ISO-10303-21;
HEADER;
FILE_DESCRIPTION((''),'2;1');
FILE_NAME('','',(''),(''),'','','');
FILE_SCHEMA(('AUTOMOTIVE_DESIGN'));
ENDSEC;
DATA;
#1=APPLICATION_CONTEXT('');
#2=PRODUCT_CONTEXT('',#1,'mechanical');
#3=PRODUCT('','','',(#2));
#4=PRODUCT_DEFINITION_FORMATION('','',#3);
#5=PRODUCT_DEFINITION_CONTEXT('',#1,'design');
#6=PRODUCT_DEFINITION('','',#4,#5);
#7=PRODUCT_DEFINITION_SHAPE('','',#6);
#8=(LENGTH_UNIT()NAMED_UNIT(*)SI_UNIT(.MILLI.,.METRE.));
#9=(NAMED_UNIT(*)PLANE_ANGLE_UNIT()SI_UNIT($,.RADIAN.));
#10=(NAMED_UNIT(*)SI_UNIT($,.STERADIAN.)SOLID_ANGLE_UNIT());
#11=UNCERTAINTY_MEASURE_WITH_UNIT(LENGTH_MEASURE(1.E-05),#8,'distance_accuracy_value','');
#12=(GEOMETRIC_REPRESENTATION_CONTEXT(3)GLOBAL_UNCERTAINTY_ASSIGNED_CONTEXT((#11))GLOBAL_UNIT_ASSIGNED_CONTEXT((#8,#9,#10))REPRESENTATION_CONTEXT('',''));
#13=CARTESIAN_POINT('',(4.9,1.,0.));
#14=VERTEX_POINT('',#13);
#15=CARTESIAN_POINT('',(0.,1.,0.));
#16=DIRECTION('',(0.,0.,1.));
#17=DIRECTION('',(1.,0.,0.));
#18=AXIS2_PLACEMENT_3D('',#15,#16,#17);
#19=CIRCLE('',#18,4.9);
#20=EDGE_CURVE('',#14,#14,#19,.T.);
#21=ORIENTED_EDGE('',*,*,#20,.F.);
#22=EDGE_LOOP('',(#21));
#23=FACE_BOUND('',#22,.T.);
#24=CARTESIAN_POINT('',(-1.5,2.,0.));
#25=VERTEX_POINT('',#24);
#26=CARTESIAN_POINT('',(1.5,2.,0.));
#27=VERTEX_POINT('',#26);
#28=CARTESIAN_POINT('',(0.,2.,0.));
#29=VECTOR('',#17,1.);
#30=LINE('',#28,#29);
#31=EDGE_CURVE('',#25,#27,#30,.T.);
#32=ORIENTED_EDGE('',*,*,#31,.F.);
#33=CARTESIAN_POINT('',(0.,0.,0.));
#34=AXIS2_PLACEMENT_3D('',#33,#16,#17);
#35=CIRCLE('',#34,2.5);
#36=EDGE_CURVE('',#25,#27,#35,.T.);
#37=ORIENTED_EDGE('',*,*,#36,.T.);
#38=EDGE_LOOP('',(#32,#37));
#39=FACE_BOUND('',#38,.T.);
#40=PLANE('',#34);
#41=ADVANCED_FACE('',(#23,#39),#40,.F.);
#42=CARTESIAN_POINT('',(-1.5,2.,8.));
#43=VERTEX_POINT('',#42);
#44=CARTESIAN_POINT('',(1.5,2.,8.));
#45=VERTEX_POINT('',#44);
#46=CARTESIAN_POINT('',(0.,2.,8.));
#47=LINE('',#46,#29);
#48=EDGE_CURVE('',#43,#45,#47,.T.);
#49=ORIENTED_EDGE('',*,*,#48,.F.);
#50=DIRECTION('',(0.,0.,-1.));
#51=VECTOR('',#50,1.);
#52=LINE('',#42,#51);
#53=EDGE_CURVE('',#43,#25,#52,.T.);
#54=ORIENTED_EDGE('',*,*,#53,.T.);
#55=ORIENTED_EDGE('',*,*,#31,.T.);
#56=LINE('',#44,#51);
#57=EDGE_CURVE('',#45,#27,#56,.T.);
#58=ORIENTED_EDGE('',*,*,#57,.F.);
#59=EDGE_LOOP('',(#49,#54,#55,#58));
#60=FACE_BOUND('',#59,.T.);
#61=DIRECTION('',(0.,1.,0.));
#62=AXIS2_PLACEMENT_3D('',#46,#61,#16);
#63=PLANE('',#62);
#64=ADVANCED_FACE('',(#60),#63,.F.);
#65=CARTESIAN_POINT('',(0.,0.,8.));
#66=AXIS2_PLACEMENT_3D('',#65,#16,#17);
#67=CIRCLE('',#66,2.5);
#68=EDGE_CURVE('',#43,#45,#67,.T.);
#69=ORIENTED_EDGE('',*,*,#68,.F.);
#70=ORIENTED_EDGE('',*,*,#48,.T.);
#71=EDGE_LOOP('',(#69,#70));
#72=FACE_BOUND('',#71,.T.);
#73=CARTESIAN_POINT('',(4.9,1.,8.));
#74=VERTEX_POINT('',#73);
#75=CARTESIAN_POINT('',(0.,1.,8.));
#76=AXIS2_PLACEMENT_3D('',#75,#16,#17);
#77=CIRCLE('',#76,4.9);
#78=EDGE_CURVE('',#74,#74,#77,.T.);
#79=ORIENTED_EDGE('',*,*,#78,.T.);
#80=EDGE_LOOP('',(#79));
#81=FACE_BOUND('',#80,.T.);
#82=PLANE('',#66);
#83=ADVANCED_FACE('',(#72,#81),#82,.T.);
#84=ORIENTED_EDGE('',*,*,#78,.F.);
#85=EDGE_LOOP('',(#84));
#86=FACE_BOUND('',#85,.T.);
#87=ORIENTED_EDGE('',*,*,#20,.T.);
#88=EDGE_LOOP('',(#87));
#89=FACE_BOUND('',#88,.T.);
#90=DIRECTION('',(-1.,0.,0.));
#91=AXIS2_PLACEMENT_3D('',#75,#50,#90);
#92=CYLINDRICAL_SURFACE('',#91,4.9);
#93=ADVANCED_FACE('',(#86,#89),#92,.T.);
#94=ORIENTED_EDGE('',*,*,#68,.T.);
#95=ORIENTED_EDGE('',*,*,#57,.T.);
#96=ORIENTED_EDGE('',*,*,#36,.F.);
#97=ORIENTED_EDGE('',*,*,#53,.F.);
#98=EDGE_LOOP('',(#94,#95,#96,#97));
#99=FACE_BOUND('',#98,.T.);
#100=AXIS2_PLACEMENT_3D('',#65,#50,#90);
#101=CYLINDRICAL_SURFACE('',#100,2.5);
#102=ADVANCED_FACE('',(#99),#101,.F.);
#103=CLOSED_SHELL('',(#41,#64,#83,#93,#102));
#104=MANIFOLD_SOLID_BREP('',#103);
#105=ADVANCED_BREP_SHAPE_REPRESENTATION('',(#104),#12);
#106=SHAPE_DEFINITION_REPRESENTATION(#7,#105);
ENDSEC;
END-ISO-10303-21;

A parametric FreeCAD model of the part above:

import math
import FreeCAD as App
import Part
import Sketcher

doc = App.newDocument("Part")
body = doc.addObject("PartDesign::Body", "Body")

sketch1 = body.newObject("Sketcher::SketchObject", "Sketch")
sketch1.AttachmentSupport = (doc.getObject("XY_Plane"), [""])
sketch1.MapMode = "FlatFace"
sketch1.addGeometry([
    Part.Circle(App.Vector(0, 1, 0), App.Vector(0, 0, 1), 4.9),
    Part.ArcOfCircle(Part.Circle(App.Vector(0, 0, 0), App.Vector(0, 0, 1), 2.5), math.radians(127), math.radians(413)),
    Part.LineSegment(App.Vector(-1.5, 2, 0), App.Vector(1.5, 2, 0)),
], False)
sketch1.addConstraint([
    Sketcher.Constraint("Coincident", 1, 1, 2, 1),
    Sketcher.Constraint("Coincident", 2, 2, 1, 2),
    Sketcher.Constraint("Horizontal", 2),
    Sketcher.Constraint("Coincident", 1, 3, -1, 1),
    Sketcher.Constraint("PointOnObject", 0, 3, -2),
    Sketcher.Constraint("Diameter", 0, 9.8),
    Sketcher.Constraint("Radius", 1, 2.5),
    Sketcher.Constraint("DistanceX", 2, 1, 2, 2, 3.0),
    Sketcher.Constraint("DistanceY", -1, 1, 0, 3, 1.0),
])
pad1 = body.newObject("PartDesign::Pad", "Pad")
pad1.Profile = sketch1
pad1.Length = 8

doc.recompute()
